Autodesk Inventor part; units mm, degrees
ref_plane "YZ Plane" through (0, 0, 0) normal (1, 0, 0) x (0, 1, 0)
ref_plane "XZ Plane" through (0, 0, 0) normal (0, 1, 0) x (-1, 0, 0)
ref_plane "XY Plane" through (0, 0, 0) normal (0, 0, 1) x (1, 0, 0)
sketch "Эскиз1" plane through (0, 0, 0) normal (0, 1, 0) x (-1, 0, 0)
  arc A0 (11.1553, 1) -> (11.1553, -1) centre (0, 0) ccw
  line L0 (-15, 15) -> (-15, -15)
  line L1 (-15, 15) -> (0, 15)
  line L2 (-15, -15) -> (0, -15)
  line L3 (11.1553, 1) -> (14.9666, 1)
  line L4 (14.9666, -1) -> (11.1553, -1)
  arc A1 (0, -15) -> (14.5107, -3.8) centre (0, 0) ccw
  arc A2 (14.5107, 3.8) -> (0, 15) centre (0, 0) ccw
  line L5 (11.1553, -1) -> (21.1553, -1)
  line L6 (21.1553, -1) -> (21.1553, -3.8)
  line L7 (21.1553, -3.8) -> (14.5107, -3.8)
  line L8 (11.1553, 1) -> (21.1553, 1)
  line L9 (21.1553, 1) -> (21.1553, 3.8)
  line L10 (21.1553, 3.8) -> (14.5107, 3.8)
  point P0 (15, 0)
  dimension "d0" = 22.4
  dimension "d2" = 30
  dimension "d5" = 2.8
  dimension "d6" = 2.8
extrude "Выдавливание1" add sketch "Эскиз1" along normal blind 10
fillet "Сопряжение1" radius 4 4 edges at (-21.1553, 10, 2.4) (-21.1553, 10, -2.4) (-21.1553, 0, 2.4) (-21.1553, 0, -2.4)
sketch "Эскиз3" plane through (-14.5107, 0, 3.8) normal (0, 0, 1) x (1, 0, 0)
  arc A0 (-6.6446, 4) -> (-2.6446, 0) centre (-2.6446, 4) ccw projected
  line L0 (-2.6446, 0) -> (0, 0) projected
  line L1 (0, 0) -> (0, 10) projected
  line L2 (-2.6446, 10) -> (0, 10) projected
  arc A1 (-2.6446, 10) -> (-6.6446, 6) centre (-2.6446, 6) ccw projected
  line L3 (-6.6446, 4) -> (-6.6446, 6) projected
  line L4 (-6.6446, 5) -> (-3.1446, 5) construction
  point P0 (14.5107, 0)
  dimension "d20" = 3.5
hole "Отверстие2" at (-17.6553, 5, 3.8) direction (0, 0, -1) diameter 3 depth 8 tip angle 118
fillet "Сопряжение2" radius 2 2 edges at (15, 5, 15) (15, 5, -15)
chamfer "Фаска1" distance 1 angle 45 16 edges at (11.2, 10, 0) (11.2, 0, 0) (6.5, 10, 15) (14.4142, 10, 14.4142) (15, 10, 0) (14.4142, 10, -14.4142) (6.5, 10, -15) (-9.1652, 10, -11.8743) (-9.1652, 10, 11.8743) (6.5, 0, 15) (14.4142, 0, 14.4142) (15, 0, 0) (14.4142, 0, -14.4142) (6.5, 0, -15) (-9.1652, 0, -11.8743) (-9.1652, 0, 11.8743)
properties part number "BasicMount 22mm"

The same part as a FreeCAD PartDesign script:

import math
import FreeCAD as App
import Part
import Sketcher

V = App.Vector


def edges_at(feature, points):
    """Names of the edges that pass closest to the given points."""
    edges = feature.Shape.Edges
    near = lambda p: min(range(len(edges)), key=lambda i: edges[i].distToShape(Part.Vertex(*p))[0])
    return sorted({f"Edge{near(p) + 1}" for p in points})

doc = App.newDocument("Part")
body = doc.addObject("PartDesign::Body", "Body")

# Sketch on XZ plane
sketch1 = doc.addObject("Sketcher::SketchObject", "Sketch")
body.addObject(sketch1)
sketch1.AttachmentSupport = (doc.XZ_Plane, [""])
sketch1.MapMode = "FlatFace"
sketch1.addGeometry([
    Part.ArcOfCircle(Part.Circle(V(0, 0, 0), V(0, 0, 1), 11.200032), math.radians(-174.877499), math.radians(174.877499)),  # 0
    Part.LineSegment(V(-11.1553, 1, 0), V(-21.1553, 1, 0)),  # 1
    Part.LineSegment(V(-21.1553, 1, 0), V(-21.1553, 3.8, 0)),  # 2
    Part.LineSegment(V(-21.1553, 3.8, 0), V(-14.5107, 3.8, 0)),  # 3
    Part.ArcOfCircle(Part.Circle(V(0, 0, 0), V(0, 0, 1), 15), math.radians(90), math.radians(165.325164)),  # 4
    Part.LineSegment(V(0, 15, 0), V(15, 15, 0)),  # 5
    Part.LineSegment(V(15, 15, 0), V(15, -15, 0)),  # 6
    Part.LineSegment(V(15, -15, 0), V(0, -15, 0)),  # 7
    Part.ArcOfCircle(Part.Circle(V(0, 0, 0), V(0, 0, 1), 15.000014), math.radians(-165.325164), math.radians(-90)),  # 8
    Part.LineSegment(V(-14.5107, -3.8, 0), V(-21.1553, -3.8, 0)),  # 9
    Part.LineSegment(V(-21.1553, -3.8, 0), V(-21.1553, -1, 0)),  # 10
    Part.LineSegment(V(-21.1553, -1, 0), V(-11.1553, -1, 0)),  # 11
], False)
sketch1.addConstraint([
    Sketcher.Constraint("Coincident", 0, 2, 1, 1),
    Sketcher.Constraint("Coincident", 1, 2, 2, 1),
    Sketcher.Constraint("Coincident", 2, 2, 3, 1),
    Sketcher.Constraint("Coincident", 3, 2, 4, 2),
    Sketcher.Constraint("Tangent", 4, 1, 5, 1),
    Sketcher.Constraint("Coincident", 5, 2, 6, 1),
    Sketcher.Constraint("Coincident", 6, 2, 7, 1),
    Sketcher.Constraint("Tangent", 7, 2, 8, 2),
    Sketcher.Constraint("Coincident", 8, 1, 9, 1),
    Sketcher.Constraint("Coincident", 9, 2, 10, 1),
    Sketcher.Constraint("Coincident", 10, 2, 11, 1),
    Sketcher.Constraint("Coincident", 11, 2, 0, 1),
    Sketcher.Constraint("Horizontal", 1),
    Sketcher.Constraint("Vertical", 2),
    Sketcher.Constraint("Horizontal", 3),
    Sketcher.Constraint("Horizontal", 5),
    Sketcher.Constraint("Vertical", 6),
    Sketcher.Constraint("Horizontal", 7),
    Sketcher.Constraint("Horizontal", 9),
    Sketcher.Constraint("Vertical", 10),
    Sketcher.Constraint("Horizontal", 11),
    Sketcher.Constraint("Coincident", 0, 3, -1, 1),
    Sketcher.Constraint("Coincident", 4, 3, -1, 1),
    Sketcher.Constraint("Coincident", 8, 3, -1, 1),
    Sketcher.Constraint("Equal", 4, 8),
    Sketcher.Constraint("Symmetric", 2, 2, 9, 2, -1),
    Sketcher.Constraint("Vertical", 0, 2, 11, 2),
    Sketcher.Constraint("Radius", 4, 15.0),
    Sketcher.Constraint("Radius", 0, 11.2),
    Sketcher.Constraint("DistanceY", 2, 1, 2, 2, 2.8),
    Sketcher.Constraint("DistanceX", 1, 2, 1, 1, 10.0),
    Sketcher.Constraint("DistanceX", 5, 1, 5, 2, 15.0),
    Sketcher.Constraint("DistanceY", -1, 1, 0, 2, 1.0),
])
pad1 = doc.addObject("PartDesign::Pad", "Pad")
body.addObject(pad1)
pad1.Profile = sketch1
pad1.Length = 10
pad1.Reversed = True
doc.recompute()

fillet = doc.addObject("PartDesign::Fillet", "Fillet")
body.addObject(fillet)
fillet.Base = (pad1, edges_at(pad1, [
    (-21.155, 10, 2.4),
    (-21.155, 10, -2.4),
    (-21.155, 0, 2.4),
    (-21.155, 0, -2.4),
]))
fillet.Radius = 4

# Sketch on XY plane
sketch2 = doc.addObject("Sketcher::SketchObject", "Sketch001")
body.addObject(sketch2)
sketch2.AttachmentSupport = (doc.XY_Plane, [""])
sketch2.MapMode = "FlatFace"
sketch2.AttachmentOffset = App.Placement(V(0, 0, 3.8), App.Rotation())
sketch2.addGeometry(Part.Circle(V(-17.6553, 5, 0), V(0, 0, 1), 1.5), False)
sketch2.addConstraint([
    Sketcher.Constraint("Diameter", 0, 3.0),
    Sketcher.Constraint("DistanceY", -1, 1, 0, 3, 5.0),
    Sketcher.Constraint("DistanceX", 0, 3, -1, 1, 17.6553),
])
doc.recompute()
hole = doc.addObject("PartDesign::Hole", "Hole")
body.addObject(hole)
hole.Profile = sketch2
hole.ThreadType = "None"
hole.Diameter = 3
hole.DepthType = "Dimension"
hole.Depth = 8
hole.DrillPoint = "Angled"
hole.DrillPointAngle = 118
doc.recompute()

fillet2 = doc.addObject("PartDesign::Fillet", "Fillet001")
body.addObject(fillet2)
fillet2.Base = (hole, edges_at(hole, [(15, 5, 15), (15, 5, -15)]))
fillet2.Radius = 2
doc.recompute()

chamfer = doc.addObject("PartDesign::Chamfer", "Chamfer")
body.addObject(chamfer)
chamfer.Base = (fillet2, edges_at(fillet2, [
    (11.2, 10, 0),
    (11.2, 0, 0),
    (6.5, 10, 15),
    (14.414, 10, 14.414),
    (15, 10, 0),
    (14.414, 10, -14.414),
    (6.5, 10, -15),
    (-9.165, 10, -11.874),
    (-9.165, 10, 11.874),
    (6.5, 0, 15),
    (14.414, 0, 14.414),
    (15, 0, 0),
    (14.414, 0, -14.414),
    (6.5, 0, -15),
    (-9.165, 0, -11.874),
    (-9.165, 0, 11.874),
]))
chamfer.Size = 1

doc.recompute()
